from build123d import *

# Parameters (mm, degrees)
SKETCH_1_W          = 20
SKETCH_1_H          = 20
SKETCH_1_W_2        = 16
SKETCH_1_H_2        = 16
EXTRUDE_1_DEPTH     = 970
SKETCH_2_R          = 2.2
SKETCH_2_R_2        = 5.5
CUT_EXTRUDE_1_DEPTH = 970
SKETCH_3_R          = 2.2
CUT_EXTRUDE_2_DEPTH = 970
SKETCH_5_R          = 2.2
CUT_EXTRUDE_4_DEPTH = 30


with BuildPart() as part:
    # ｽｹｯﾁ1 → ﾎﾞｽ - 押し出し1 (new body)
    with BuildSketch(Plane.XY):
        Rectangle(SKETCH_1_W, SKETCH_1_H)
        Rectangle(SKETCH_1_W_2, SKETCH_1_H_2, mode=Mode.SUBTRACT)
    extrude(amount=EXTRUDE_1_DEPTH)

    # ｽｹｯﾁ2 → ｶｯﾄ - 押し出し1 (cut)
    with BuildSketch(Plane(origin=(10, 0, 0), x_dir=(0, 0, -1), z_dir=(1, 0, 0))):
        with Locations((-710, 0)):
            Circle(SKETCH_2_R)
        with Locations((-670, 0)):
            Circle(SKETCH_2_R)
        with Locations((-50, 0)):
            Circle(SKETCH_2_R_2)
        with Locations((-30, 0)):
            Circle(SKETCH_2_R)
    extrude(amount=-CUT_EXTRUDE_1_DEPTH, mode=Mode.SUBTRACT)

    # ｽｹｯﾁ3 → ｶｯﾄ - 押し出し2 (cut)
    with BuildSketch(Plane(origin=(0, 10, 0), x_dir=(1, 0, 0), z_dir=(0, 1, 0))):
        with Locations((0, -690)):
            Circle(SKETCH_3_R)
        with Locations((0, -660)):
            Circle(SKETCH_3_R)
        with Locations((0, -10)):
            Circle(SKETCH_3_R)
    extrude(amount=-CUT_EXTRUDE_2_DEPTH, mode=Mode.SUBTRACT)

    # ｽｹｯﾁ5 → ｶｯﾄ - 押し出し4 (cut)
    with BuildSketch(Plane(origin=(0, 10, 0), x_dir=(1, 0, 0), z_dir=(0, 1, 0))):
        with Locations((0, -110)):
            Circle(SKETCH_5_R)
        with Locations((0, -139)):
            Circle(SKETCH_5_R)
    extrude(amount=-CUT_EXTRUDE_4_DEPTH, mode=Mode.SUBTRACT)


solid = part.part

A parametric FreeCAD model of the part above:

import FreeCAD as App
import Part
import Sketcher
from FreeCAD import Vector
Q = App.Units.Quantity


def add_polygon(sketch, points):
    """Adds a closed chain of lines whose ends are joined by coincident constraints."""
    first, n = sketch.GeometryCount, len(points)
    for a, b in zip(points, points[1:] + points[:1]):
        sketch.addGeometry(Part.LineSegment(App.Vector(*a, 0), App.Vector(*b, 0)), False)
    for i in range(n):
        sketch.addConstraint(Sketcher.Constraint("Coincident", first + i, 2, first + (i + 1) % n, 1))

doc = App.newDocument("Part")
params = doc.addObject("Spreadsheet::Sheet", "Params")
for row, (alias, value) in enumerate([
    ("sketch1_width", "20 mm"),
    ("sketch1_width2", "16 mm"),
    ("pad1_length", "970 mm"),
    ("sketch2_diameter", "11 mm"),
    ("sketch2_diameter2", "4.4 mm"),
    ("pocket1_length", "970 mm"),
    ("sketch3_diameter", "4.4 mm"),
    ("pocket2_length", "970 mm"),
    ("sketch4_diameter", "4.4 mm"),
    ("pocket3_length", "30 mm"),
], start=1):
    params.set(f"A{row}", alias)
    params.set(f"B{row}", "=" + value)
    params.setAlias(f"B{row}", alias)

body = doc.addObject("PartDesign::Body", "Body")

sketch1 = body.newObject("Sketcher::SketchObject", "Sketch")
sketch1.AttachmentSupport = (doc.getObject("XY_Plane"), [""])
sketch1.MapMode = "FlatFace"
add_polygon(sketch1, [(-10, 10), (-10, -10), (10, -10), (10, 10)])
add_polygon(sketch1, [(8, -8), (-8, -8), (-8, 8), (8, 8)])
sketch1.addConstraint([
    Sketcher.Constraint("Vertical", 0),
    Sketcher.Constraint("Horizontal", 1),
    Sketcher.Constraint("Vertical", 2),
    Sketcher.Constraint("Horizontal", 3),
    Sketcher.Constraint("Horizontal", 4),
    Sketcher.Constraint("Vertical", 5),
    Sketcher.Constraint("Horizontal", 6),
    Sketcher.Constraint("Vertical", 7),
    Sketcher.Constraint("Symmetric", 0, 2, 2, 2, -1, 1),
    Sketcher.Constraint("Symmetric", 4, 2, 6, 2, -1, 1),
    Sketcher.Constraint("Equal", 3, 0),
    Sketcher.Constraint("Equal", 6, 5),
    Sketcher.Constraint("DistanceX", 1, 1, 1, 2, Q("20 mm")),
    Sketcher.Constraint("DistanceX", 4, 2, 4, 1, Q("16 mm")),
])
sketch1.setExpression("Constraints[20]", "Params.sketch1_width")
sketch1.setExpression("Constraints[21]", "Params.sketch1_width2")
pad1 = body.newObject("PartDesign::Pad", "Pad")
pad1.Profile = sketch1
pad1.setExpression("Length", "Params.pad1_length")

sketch2 = body.newObject("Sketcher::SketchObject", "Sketch001")
sketch2.AttachmentSupport = (doc.getObject("YZ_Plane"), [""])
sketch2.MapMode = "FlatFace"
sketch2.AttachmentOffset = App.Placement(Vector(0, 0, 10), App.Rotation())
sketch2.addGeometry([
    Part.Circle(Vector(0, 710, 0), Vector(0, 0, 1), 2.2),
    Part.Circle(Vector(0, 670, 0), Vector(0, 0, 1), 2.2),
    Part.Circle(Vector(0, 50, 0), Vector(0, 0, 1), 5.5),
    Part.Circle(Vector(0, 30, 0), Vector(0, 0, 1), 2.2),
], False)
sketch2.addConstraint([
    Sketcher.Constraint("Equal", 0, 1),
    Sketcher.Constraint("Equal", 1, 3),
    Sketcher.Constraint("PointOnObject", 0, 3, -2),
    Sketcher.Constraint("PointOnObject", 1, 3, -2),
    Sketcher.Constraint("PointOnObject", 2, 3, -2),
    Sketcher.Constraint("PointOnObject", 3, 3, -2),
    Sketcher.Constraint("Diameter", 2, Q("11 mm")),
    Sketcher.Constraint("Diameter", 0, Q("4.4 mm")),
    Sketcher.Constraint("DistanceY", -1, 1, 0, 3, Q("710 mm")),
    Sketcher.Constraint("DistanceY", -1, 1, 1, 3, Q("670 mm")),
    Sketcher.Constraint("DistanceY", -1, 1, 2, 3, Q("50 mm")),
    Sketcher.Constraint("DistanceY", -1, 1, 3, 3, Q("30 mm")),
])
sketch2.setExpression("Constraints[6]", "Params.sketch2_diameter")
sketch2.setExpression("Constraints[7]", "Params.sketch2_diameter2")
pocket1 = body.newObject("PartDesign::Pocket", "Pocket")
pocket1.Profile = sketch2
pocket1.setExpression("Length", "Params.pocket1_length")

sketch3 = body.newObject("Sketcher::SketchObject", "Sketch002")
sketch3.AttachmentSupport = (doc.getObject("XZ_Plane"), [""])
sketch3.MapMode = "FlatFace"
sketch3.AttachmentOffset = App.Placement(Vector(0, 0, -10), App.Rotation())
sketch3.addGeometry([
    Part.Circle(Vector(0, 690, 0), Vector(0, 0, 1), 2.2),
    Part.Circle(Vector(0, 660, 0), Vector(0, 0, 1), 2.2),
    Part.Circle(Vector(0, 10, 0), Vector(0, 0, 1), 2.2),
], False)
sketch3.addConstraint([
    Sketcher.Constraint("Equal", 0, 1),
    Sketcher.Constraint("Equal", 1, 2),
    Sketcher.Constraint("PointOnObject", 0, 3, -2),
    Sketcher.Constraint("PointOnObject", 1, 3, -2),
    Sketcher.Constraint("PointOnObject", 2, 3, -2),
    Sketcher.Constraint("Diameter", 0, Q("4.4 mm")),
    Sketcher.Constraint("DistanceY", -1, 1, 0, 3, Q("690 mm")),
    Sketcher.Constraint("DistanceY", -1, 1, 1, 3, Q("660 mm")),
    Sketcher.Constraint("DistanceY", -1, 1, 2, 3, Q("10 mm")),
])
sketch3.setExpression("Constraints[5]", "Params.sketch3_diameter")
pocket2 = body.newObject("PartDesign::Pocket", "Pocket001")
pocket2.Profile = sketch3
pocket2.setExpression("Length", "Params.pocket2_length")
pocket2.Reversed = True

sketch4 = body.newObject("Sketcher::SketchObject", "Sketch003")
sketch4.AttachmentSupport = (doc.getObject("XZ_Plane"), [""])
sketch4.MapMode = "FlatFace"
sketch4.AttachmentOffset = App.Placement(Vector(0, 0, -10), App.Rotation())
sketch4.addGeometry([
    Part.Circle(Vector(0, 110, 0), Vector(0, 0, 1), 2.2),
    Part.Circle(Vector(0, 139, 0), Vector(0, 0, 1), 2.2),
], False)
sketch4.addConstraint([
    Sketcher.Constraint("Equal", 0, 1),
    Sketcher.Constraint("PointOnObject", 0, 3, -2),
    Sketcher.Constraint("PointOnObject", 1, 3, -2),
    Sketcher.Constraint("Diameter", 0, Q("4.4 mm")),
    Sketcher.Constraint("DistanceY", -1, 1, 0, 3, Q("110 mm")),
    Sketcher.Constraint("DistanceY", -1, 1, 1, 3, Q("139 mm")),
])
sketch4.setExpression("Constraints[3]", "Params.sketch4_diameter")
pocket3 = body.newObject("PartDesign::Pocket", "Pocket002")
pocket3.Profile = sketch4
pocket3.setExpression("Length", "Params.pocket3_length")
pocket3.Reversed = True

doc.recompute()
